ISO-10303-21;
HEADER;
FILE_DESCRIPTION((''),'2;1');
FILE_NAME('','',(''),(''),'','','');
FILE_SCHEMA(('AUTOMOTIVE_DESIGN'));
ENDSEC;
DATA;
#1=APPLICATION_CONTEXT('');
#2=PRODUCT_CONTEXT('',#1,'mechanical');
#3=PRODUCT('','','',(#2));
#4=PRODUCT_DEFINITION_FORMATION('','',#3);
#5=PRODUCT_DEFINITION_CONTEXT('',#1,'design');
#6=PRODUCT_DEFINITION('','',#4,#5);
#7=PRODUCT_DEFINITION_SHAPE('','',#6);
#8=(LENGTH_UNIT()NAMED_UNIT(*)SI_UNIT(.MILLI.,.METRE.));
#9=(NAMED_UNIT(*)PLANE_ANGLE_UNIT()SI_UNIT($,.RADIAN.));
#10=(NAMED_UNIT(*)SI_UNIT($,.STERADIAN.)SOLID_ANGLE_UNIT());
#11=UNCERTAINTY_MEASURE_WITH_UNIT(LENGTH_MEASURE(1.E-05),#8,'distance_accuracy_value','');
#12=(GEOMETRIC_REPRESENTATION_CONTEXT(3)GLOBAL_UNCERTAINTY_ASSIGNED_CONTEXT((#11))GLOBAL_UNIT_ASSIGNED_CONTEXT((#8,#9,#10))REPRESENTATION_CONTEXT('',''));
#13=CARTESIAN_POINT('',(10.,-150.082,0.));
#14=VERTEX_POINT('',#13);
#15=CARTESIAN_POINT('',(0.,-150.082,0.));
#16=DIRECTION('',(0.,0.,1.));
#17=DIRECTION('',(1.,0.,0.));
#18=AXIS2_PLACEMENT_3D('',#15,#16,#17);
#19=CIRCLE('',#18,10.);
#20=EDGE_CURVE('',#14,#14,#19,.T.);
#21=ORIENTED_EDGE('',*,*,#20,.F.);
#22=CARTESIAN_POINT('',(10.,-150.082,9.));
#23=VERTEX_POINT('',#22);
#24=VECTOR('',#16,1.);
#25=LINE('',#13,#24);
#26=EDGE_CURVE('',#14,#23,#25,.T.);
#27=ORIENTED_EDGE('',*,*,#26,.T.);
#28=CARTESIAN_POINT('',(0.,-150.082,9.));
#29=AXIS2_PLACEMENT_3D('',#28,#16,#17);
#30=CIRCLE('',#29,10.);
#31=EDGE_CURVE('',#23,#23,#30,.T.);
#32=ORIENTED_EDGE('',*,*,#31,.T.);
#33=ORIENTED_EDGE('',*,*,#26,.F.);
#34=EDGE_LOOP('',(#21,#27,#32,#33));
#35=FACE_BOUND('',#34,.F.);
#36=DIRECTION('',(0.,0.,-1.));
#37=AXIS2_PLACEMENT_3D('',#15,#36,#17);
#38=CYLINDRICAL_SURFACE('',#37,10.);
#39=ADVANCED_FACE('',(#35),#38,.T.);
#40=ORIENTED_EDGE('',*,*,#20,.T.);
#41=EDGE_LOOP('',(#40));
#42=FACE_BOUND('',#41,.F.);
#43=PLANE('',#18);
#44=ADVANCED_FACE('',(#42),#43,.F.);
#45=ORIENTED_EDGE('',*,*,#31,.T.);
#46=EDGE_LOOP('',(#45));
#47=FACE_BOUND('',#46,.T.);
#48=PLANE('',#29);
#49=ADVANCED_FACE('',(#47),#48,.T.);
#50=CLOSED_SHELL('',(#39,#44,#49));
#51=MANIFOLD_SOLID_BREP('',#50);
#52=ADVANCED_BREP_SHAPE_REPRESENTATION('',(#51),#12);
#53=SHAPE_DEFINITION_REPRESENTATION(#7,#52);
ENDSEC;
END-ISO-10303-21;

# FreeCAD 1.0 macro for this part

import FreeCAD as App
import Part
import Sketcher

V = App.Vector
Q = App.Units.Quantity

doc = App.newDocument("Part")
body = doc.addObject("PartDesign::Body", "Body")

# Sketch on XY plane
sketch1 = body.newObject("Sketcher::SketchObject", "Sketch")
sketch1.AttachmentSupport = (doc.getObject("XY_Plane"), [""])
sketch1.MapMode = "FlatFace"
sketch1.addGeometry(Part.Circle(V(0, -150, 0), V(0, 0, 1), 10), False)
sketch1.addConstraint(Sketcher.Constraint("PointOnObject", 0, 3, -2))
sketch1.addConstraint(Sketcher.Constraint("Diameter", 0, Q("20 mm")))
sketch1.addConstraint(Sketcher.Constraint("DistanceY", 0, 3, -1, 1, Q("150.082 mm")))
pad1 = body.newObject("PartDesign::Pad", "Pad")
pad1.Profile = sketch1
pad1.Length = 9

doc.recompute()
